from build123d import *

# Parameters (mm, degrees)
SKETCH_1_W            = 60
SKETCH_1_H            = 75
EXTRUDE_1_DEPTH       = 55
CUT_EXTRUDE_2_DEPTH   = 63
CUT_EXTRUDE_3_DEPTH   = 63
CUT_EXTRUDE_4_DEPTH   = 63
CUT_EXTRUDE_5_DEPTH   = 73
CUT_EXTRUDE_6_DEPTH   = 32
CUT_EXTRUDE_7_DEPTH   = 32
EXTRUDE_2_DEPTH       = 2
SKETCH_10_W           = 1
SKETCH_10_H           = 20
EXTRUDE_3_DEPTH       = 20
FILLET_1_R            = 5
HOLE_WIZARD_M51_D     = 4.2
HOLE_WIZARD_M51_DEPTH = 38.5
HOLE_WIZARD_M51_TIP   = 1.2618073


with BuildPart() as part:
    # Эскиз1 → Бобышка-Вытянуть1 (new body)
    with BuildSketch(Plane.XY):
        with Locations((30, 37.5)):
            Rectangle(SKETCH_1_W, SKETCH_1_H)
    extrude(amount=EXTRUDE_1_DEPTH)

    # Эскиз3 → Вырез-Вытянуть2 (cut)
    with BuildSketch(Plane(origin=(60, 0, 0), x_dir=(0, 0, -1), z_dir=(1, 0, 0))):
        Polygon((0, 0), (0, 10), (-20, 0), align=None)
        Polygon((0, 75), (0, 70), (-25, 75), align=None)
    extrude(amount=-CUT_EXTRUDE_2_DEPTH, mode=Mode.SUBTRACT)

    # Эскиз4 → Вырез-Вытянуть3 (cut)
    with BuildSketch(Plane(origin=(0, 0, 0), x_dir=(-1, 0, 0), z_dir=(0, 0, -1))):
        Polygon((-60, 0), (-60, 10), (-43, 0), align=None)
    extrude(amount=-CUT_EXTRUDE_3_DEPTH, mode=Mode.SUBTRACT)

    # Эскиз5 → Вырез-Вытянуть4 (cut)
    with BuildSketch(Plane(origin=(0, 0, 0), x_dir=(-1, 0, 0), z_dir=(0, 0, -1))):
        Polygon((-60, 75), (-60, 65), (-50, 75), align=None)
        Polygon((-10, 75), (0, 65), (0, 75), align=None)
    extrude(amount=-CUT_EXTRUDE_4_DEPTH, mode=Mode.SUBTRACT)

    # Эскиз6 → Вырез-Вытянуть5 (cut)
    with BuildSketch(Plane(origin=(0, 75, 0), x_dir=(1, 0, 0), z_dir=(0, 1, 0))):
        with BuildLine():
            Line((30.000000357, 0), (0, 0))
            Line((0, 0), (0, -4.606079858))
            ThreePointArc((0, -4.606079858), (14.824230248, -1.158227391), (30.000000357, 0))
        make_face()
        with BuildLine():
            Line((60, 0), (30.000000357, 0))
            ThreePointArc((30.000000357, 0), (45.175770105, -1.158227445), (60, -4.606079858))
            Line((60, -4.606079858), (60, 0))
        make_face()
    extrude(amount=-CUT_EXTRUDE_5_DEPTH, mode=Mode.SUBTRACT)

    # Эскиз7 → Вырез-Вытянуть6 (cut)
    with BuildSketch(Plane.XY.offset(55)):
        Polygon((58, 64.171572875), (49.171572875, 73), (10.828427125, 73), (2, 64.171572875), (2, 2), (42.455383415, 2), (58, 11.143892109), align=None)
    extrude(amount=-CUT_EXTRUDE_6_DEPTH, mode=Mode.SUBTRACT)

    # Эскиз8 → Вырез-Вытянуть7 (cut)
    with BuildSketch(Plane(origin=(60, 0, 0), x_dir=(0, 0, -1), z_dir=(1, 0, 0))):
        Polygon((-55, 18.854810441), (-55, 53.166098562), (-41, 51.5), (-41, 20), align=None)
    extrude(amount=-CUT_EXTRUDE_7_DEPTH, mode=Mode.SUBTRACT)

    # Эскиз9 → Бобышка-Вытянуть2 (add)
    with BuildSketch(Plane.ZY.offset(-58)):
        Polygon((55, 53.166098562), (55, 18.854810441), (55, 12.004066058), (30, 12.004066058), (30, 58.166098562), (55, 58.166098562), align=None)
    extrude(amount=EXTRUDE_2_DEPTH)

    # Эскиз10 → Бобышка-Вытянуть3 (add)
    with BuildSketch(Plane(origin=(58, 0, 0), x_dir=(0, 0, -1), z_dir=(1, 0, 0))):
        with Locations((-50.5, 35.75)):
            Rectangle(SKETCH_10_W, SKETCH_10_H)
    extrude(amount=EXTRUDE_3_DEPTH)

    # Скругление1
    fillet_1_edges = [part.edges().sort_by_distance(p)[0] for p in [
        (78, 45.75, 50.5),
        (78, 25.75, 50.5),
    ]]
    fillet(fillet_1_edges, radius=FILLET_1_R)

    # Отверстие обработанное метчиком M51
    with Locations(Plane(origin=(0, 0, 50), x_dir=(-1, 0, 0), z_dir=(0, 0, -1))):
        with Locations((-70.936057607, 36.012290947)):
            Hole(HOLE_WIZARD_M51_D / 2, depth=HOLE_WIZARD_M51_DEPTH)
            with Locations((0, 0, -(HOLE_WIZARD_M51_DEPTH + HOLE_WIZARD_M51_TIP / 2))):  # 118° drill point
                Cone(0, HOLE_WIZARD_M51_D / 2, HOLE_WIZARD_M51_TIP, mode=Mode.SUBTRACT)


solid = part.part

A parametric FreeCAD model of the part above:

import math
import FreeCAD as App
import Part
import Sketcher

V = App.Vector
Q = App.Units.Quantity


def edges_at(feature, points):
    """Names of the edges that pass closest to the given points."""
    edges = feature.Shape.Edges
    near = lambda p: min(range(len(edges)), key=lambda i: edges[i].distToShape(Part.Vertex(*p))[0])
    return sorted({f"Edge{near(p) + 1}" for p in points})

doc = App.newDocument("Part")
body = doc.addObject("PartDesign::Body", "Body")

# Sketch on XY plane
sketch1 = doc.addObject("Sketcher::SketchObject", "Sketch")
body.addObject(sketch1)
sketch1.AttachmentSupport = (doc.XY_Plane, [""])
sketch1.MapMode = "FlatFace"
sketch1.addGeometry(Part.LineSegment(V(0, 75, 0), V(0, 0, 0)), False)
sketch1.addGeometry(Part.LineSegment(V(0, 0, 0), V(60, 0, 0)), False)
sketch1.addGeometry(Part.LineSegment(V(60, 0, 0), V(60, 75, 0)), False)
sketch1.addGeometry(Part.LineSegment(V(60, 75, 0), V(0, 75, 0)), False)
sketch1.addConstraint(Sketcher.Constraint("Coincident", 0, 2, 1, 1))
sketch1.addConstraint(Sketcher.Constraint("Coincident", 1, 2, 2, 1))
sketch1.addConstraint(Sketcher.Constraint("Coincident", 2, 2, 3, 1))
sketch1.addConstraint(Sketcher.Constraint("Coincident", 3, 2, 0, 1))
sketch1.addConstraint(Sketcher.Constraint("Vertical", 0))
sketch1.addConstraint(Sketcher.Constraint("Horizontal", 1))
sketch1.addConstraint(Sketcher.Constraint("Vertical", 2))
sketch1.addConstraint(Sketcher.Constraint("Horizontal", 3))
sketch1.addConstraint(Sketcher.Constraint("Coincident", 0, 2, -1, 1))
sketch1.addConstraint(Sketcher.Constraint("DistanceX", 1, 1, 1, 2, Q("60 mm")))
sketch1.addConstraint(Sketcher.Constraint("DistanceY", 0, 2, 0, 1, Q("75 mm")))
pad1 = doc.addObject("PartDesign::Pad", "Pad")
body.addObject(pad1)
pad1.Profile = sketch1
pad1.Length = 55

# Sketch on YZ plane
sketch2 = doc.addObject("Sketcher::SketchObject", "Sketch001")
body.addObject(sketch2)
sketch2.AttachmentSupport = (doc.YZ_Plane, [""])
sketch2.MapMode = "FlatFace"
sketch2.AttachmentOffset = App.Placement(V(0, 0, 60), App.Rotation())
sketch2.addGeometry(Part.LineSegment(V(0, 0, 0), V(10, 0, 0)), False)
sketch2.addGeometry(Part.LineSegment(V(10, 0, 0), V(0, 20, 0)), False)
sketch2.addGeometry(Part.LineSegment(V(0, 20, 0), V(0, 0, 0)), False)
sketch2.addGeometry(Part.LineSegment(V(70, 0, 0), V(75, 0, 0)), False)
sketch2.addGeometry(Part.LineSegment(V(75, 0, 0), V(75, 25, 0)), False)
sketch2.addGeometry(Part.LineSegment(V(75, 25, 0), V(70, 0, 0)), False)
sketch2.addConstraint(Sketcher.Constraint("Coincident", 0, 2, 1, 1))
sketch2.addConstraint(Sketcher.Constraint("Coincident", 1, 2, 2, 1))
sketch2.addConstraint(Sketcher.Constraint("Coincident", 2, 2, 0, 1))
sketch2.addConstraint(Sketcher.Constraint("Coincident", 3, 2, 4, 1))
sketch2.addConstraint(Sketcher.Constraint("Coincident", 4, 2, 5, 1))
sketch2.addConstraint(Sketcher.Constraint("Coincident", 5, 2, 3, 1))
sketch2.addConstraint(Sketcher.Constraint("Horizontal", 0))
sketch2.addConstraint(Sketcher.Constraint("Vertical", 2))
sketch2.addConstraint(Sketcher.Constraint("Horizontal", 3))
sketch2.addConstraint(Sketcher.Constraint("Vertical", 4))
sketch2.addConstraint(Sketcher.Constraint("Coincident", 2, 2, -1, 1))
sketch2.addConstraint(Sketcher.Constraint("PointOnObject", 3, 2, -1))
sketch2.addConstraint(Sketcher.Constraint("DistanceX", 0, 1, 0, 2, Q("10 mm")))
sketch2.addConstraint(Sketcher.Constraint("DistanceX", 3, 1, 3, 2, Q("5 mm")))
sketch2.addConstraint(Sketcher.Constraint("DistanceY", 2, 2, 2, 1, Q("20 mm")))
sketch2.addConstraint(Sketcher.Constraint("DistanceY", 4, 1, 4, 2, Q("25 mm")))
sketch2.addConstraint(Sketcher.Constraint("DistanceX", -1, 1, 3, 2, Q("75 mm")))
pocket1 = doc.addObject("PartDesign::Pocket", "Pocket")
body.addObject(pocket1)
pocket1.Profile = sketch2
pocket1.Length = 63

# Sketch on XY plane
sketch3 = doc.addObject("Sketcher::SketchObject", "Sketch002")
body.addObject(sketch3)
sketch3.AttachmentSupport = (doc.XY_Plane, [""])
sketch3.MapMode = "FlatFace"
sketch3.addGeometry(Part.LineSegment(V(60, 10, 0), V(60, 0, 0)), False)
sketch3.addGeometry(Part.LineSegment(V(60, 0, 0), V(43, 0, 0)), False)
sketch3.addGeometry(Part.LineSegment(V(43, 0, 0), V(60, 10, 0)), False)
sketch3.addConstraint(Sketcher.Constraint("Coincident", 0, 2, 1, 1))
sketch3.addConstraint(Sketcher.Constraint("Coincident", 1, 2, 2, 1))
sketch3.addConstraint(Sketcher.Constraint("Coincident", 2, 2, 0, 1))
sketch3.addConstraint(Sketcher.Constraint("Vertical", 0))
sketch3.addConstraint(Sketcher.Constraint("Horizontal", 1))
sketch3.addConstraint(Sketcher.Constraint("PointOnObject", 0, 2, -1))
sketch3.addConstraint(Sketcher.Constraint("DistanceX", 1, 2, 1, 1, Q("17 mm")))
sketch3.addConstraint(Sketcher.Constraint("DistanceY", 0, 2, 0, 1, Q("10 mm")))
sketch3.addConstraint(Sketcher.Constraint("DistanceX", -1, 1, 0, 2, Q("60 mm")))
pocket2 = doc.addObject("PartDesign::Pocket", "Pocket001")
body.addObject(pocket2)
pocket2.Profile = sketch3
pocket2.Length = 63
pocket2.Reversed = True

# Sketch on XY plane
sketch4 = doc.addObject("Sketcher::SketchObject", "Sketch003")
body.addObject(sketch4)
sketch4.AttachmentSupport = (doc.XY_Plane, [""])
sketch4.MapMode = "FlatFace"
sketch4.addGeometry(Part.LineSegment(V(60, 75, 0), V(60, 65, 0)), False)
sketch4.addGeometry(Part.LineSegment(V(60, 65, 0), V(50, 75, 0)), False)
sketch4.addGeometry(Part.LineSegment(V(50, 75, 0), V(60, 75, 0)), False)
sketch4.addGeometry(Part.LineSegment(V(10, 75, 0), V(0, 65, 0)), False)
sketch4.addGeometry(Part.LineSegment(V(0, 65, 0), V(0, 75, 0)), False)
sketch4.addGeometry(Part.LineSegment(V(0, 75, 0), V(10, 75, 0)), False)
sketch4.addConstraint(Sketcher.Constraint("Coincident", 0, 2, 1, 1))
sketch4.addConstraint(Sketcher.Constraint("Coincident", 1, 2, 2, 1))
sketch4.addConstraint(Sketcher.Constraint("Coincident", 2, 2, 0, 1))
sketch4.addConstraint(Sketcher.Constraint("Coincident", 3, 2, 4, 1))
sketch4.addConstraint(Sketcher.Constraint("Coincident", 4, 2, 5, 1))
sketch4.addConstraint(Sketcher.Constraint("Coincident", 5, 2, 3, 1))
sketch4.addConstraint(Sketcher.Constraint("Vertical", 0))
sketch4.addConstraint(Sketcher.Constraint("Horizontal", 2))
sketch4.addConstraint(Sketcher.Constraint("Vertical", 4))
sketch4.addConstraint(Sketcher.Constraint("Horizontal", 5))
sketch4.addConstraint(Sketcher.Constraint("PointOnObject", 3, 2, -2))
sketch4.addConstraint(Sketcher.Constraint("Perpendicular", 1, 3))
sketch4.addConstraint(Sketcher.Constraint("Horizontal", 0, 2, 3, 2))
sketch4.addConstraint(Sketcher.Constraint("Horizontal", 2, 2, 4, 2))
sketch4.addConstraint(Sketcher.Constraint("Equal", 2, 5))
sketch4.addConstraint(Sketcher.Constraint("DistanceX", 2, 1, 2, 2, Q("10 mm")))
sketch4.addConstraint(Sketcher.Constraint("DistanceX", -1, 1, 0, 2, Q("60 mm")))
sketch4.addConstraint(Sketcher.Constraint("DistanceY", -1, 1, 0, 2, Q("65 mm")))
pocket3 = doc.addObject("PartDesign::Pocket", "Pocket002")
body.addObject(pocket3)
pocket3.Profile = sketch4
pocket3.Length = 63
pocket3.Reversed = True

# Sketch on XZ plane
sketch5 = doc.addObject("Sketcher::SketchObject", "Sketch004")
body.addObject(sketch5)
sketch5.AttachmentSupport = (doc.XZ_Plane, [""])
sketch5.MapMode = "FlatFace"
sketch5.AttachmentOffset = App.Placement(V(0, 0, -75), App.Rotation())
sketch5.addGeometry(Part.LineSegment(V(30, 0, 0), V(0, 0, 0)), False)
sketch5.addGeometry(Part.LineSegment(V(0, 0, 0), V(0, 4.6, 0)), False)
sketch5.addGeometry(Part.ArcOfCircle(Part.Circle(V(30, 100, 0), V(0, 0, 1), 100), math.radians(-107.46), math.radians(-90)), False)
sketch5.addGeometry(Part.LineSegment(V(60, 0, 0), V(30, 0, 0)), False)
sketch5.addGeometry(Part.ArcOfCircle(Part.Circle(V(30, 100, 0), V(0, 0, 1), 100), math.radians(-90), math.radians(-72.54)), False)
sketch5.addGeometry(Part.LineSegment(V(60, 4.6, 0), V(60, 0, 0)), False)
sketch5.addConstraint(Sketcher.Constraint("Coincident", 0, 2, 1, 1))
sketch5.addConstraint(Sketcher.Constraint("Coincident", 1, 2, 2, 1))
sketch5.addConstraint(Sketcher.Constraint("Tangent", 2, 2, 0, 1))
sketch5.addConstraint(Sketcher.Constraint("Tangent", 3, 2, 4, 1))
sketch5.addConstraint(Sketcher.Constraint("Coincident", 4, 2, 5, 1))
sketch5.addConstraint(Sketcher.Constraint("Coincident", 5, 2, 3, 1))
sketch5.addConstraint(Sketcher.Constraint("Horizontal", 0))
sketch5.addConstraint(Sketcher.Constraint("Vertical", 1))
sketch5.addConstraint(Sketcher.Constraint("Horizontal", 3))
sketch5.addConstraint(Sketcher.Constraint("Vertical", 5))
sketch5.addConstraint(Sketcher.Constraint("Coincident", 0, 2, -1, 1))
sketch5.addConstraint(Sketcher.Constraint("Coincident", 4, 3, 2, 3))
sketch5.addConstraint(Sketcher.Constraint("Equal", 2, 4))
sketch5.addConstraint(Sketcher.Constraint("Horizontal", 1, 2, 4, 2))
sketch5.addConstraint(Sketcher.Constraint("Radius", 2, Q("100 mm")))
sketch5.addConstraint(Sketcher.Constraint("DistanceX", 0, 2, 0, 1, Q("30 mm")))
pocket4 = doc.addObject("PartDesign::Pocket", "Pocket003")
body.addObject(pocket4)
pocket4.Profile = sketch5
pocket4.Length = 73
pocket4.Reversed = True

# Sketch on XY plane
sketch6 = doc.addObject("Sketcher::SketchObject", "Sketch005")
body.addObject(sketch6)
sketch6.AttachmentSupport = (doc.XY_Plane, [""])
sketch6.MapMode = "FlatFace"
sketch6.AttachmentOffset = App.Placement(V(0, 0, 55), App.Rotation())
sketch6.addGeometry(Part.LineSegment(V(58, 64, 0), V(49, 73, 0)), False)
sketch6.addGeometry(Part.LineSegment(V(49, 73, 0), V(11, 73, 0)), False)
sketch6.addGeometry(Part.LineSegment(V(11, 73, 0), V(2, 64, 0)), False)
sketch6.addGeometry(Part.LineSegment(V(2, 64, 0), V(2, 2, 0)), False)
sketch6.addGeometry(Part.LineSegment(V(2, 2, 0), V(42, 2, 0)), False)
sketch6.addGeometry(Part.LineSegment(V(42, 2, 0), V(58, 11, 0)), False)
sketch6.addGeometry(Part.LineSegment(V(58, 11, 0), V(58, 64, 0)), False)
sketch6.addConstraint(Sketcher.Constraint("Coincident", 0, 2, 1, 1))
sketch6.addConstraint(Sketcher.Constraint("Coincident", 1, 2, 2, 1))
sketch6.addConstraint(Sketcher.Constraint("Coincident", 2, 2, 3, 1))
sketch6.addConstraint(Sketcher.Constraint("Coincident", 3, 2, 4, 1))
sketch6.addConstraint(Sketcher.Constraint("Coincident", 4, 2, 5, 1))
sketch6.addConstraint(Sketcher.Constraint("Coincident", 5, 2, 6, 1))
sketch6.addConstraint(Sketcher.Constraint("Coincident", 6, 2, 0, 1))
sketch6.addConstraint(Sketcher.Constraint("Horizontal", 1))
sketch6.addConstraint(Sketcher.Constraint("Vertical", 3))
sketch6.addConstraint(Sketcher.Constraint("Horizontal", 4))
sketch6.addConstraint(Sketcher.Constraint("Vertical", 6))
sketch6.addConstraint(Sketcher.Constraint("Perpendicular", 0, 2))
sketch6.addConstraint(Sketcher.Constraint("Horizontal", 2, 2, 6, 2))
sketch6.addConstraint(Sketcher.Constraint("Equal", 0, 2))
sketch6.addConstraint(Sketcher.Constraint("DistanceY", -1, 1, 0, 2, Q("73 mm")))
sketch6.addConstraint(Sketcher.Constraint("DistanceX", -1, 1, 2, 2, Q("2 mm")))
sketch6.addConstraint(Sketcher.Constraint("DistanceY", -1, 1, 3, 2, Q("2 mm")))
sketch6.addConstraint(Sketcher.Constraint("DistanceX", -1, 1, 5, 2, Q("58 mm")))
sketch6.addConstraint(Sketcher.Constraint("DistanceY", 6, 1, 6, 2, Q("53.027681 mm")))
sketch6.addConstraint(Sketcher.Constraint("Distance", 0, Q("12.485281 mm")))
sketch6.addConstraint(Sketcher.Constraint("DistanceX", 4, 1, 4, 2, Q("40.455383 mm")))
pocket5 = doc.addObject("PartDesign::Pocket", "Pocket004")
body.addObject(pocket5)
pocket5.Profile = sketch6
pocket5.Length = 32

# Sketch on YZ plane
sketch7 = doc.addObject("Sketcher::SketchObject", "Sketch006")
body.addObject(sketch7)
sketch7.AttachmentSupport = (doc.YZ_Plane, [""])
sketch7.MapMode = "FlatFace"
sketch7.AttachmentOffset = App.Placement(V(0, 0, 60), App.Rotation())
sketch7.addGeometry(Part.LineSegment(V(53, 55, 0), V(19, 55, 0)), False)
sketch7.addGeometry(Part.LineSegment(V(19, 55, 0), V(20, 41, 0)), False)
sketch7.addGeometry(Part.LineSegment(V(20, 41, 0), V(52, 41, 0)), False)
sketch7.addGeometry(Part.LineSegment(V(52, 41, 0), V(53, 55, 0)), False)
sketch7.addConstraint(Sketcher.Constraint("Coincident", 0, 2, 1, 1))
sketch7.addConstraint(Sketcher.Constraint("Coincident", 1, 2, 2, 1))
sketch7.addConstraint(Sketcher.Constraint("Coincident", 2, 2, 3, 1))
sketch7.addConstraint(Sketcher.Constraint("Coincident", 3, 2, 0, 1))
sketch7.addConstraint(Sketcher.Constraint("Horizontal", 0))
sketch7.addConstraint(Sketcher.Constraint("Horizontal", 2))
sketch7.addConstraint(Sketcher.Constraint("DistanceX", 2, 1, 2, 2, Q("31.5 mm")))
sketch7.addConstraint(Sketcher.Constraint("DistanceY", -1, 1, 0, 2, Q("55 mm")))
sketch7.addConstraint(Sketcher.Constraint("DistanceX", -1, 1, 1, 2, Q("20 mm")))
sketch7.addConstraint(Sketcher.Constraint("DistanceY", -1, 1, 1, 2, Q("41 mm")))
sketch7.addConstraint(Sketcher.Constraint("DistanceX", 0, 2, 0, 1, Q("34.311288 mm")))
sketch7.addConstraint(Sketcher.Constraint("DistanceX", -1, 1, 3, 2, Q("53.166099 mm")))
pocket6 = doc.addObject("PartDesign::Pocket", "Pocket005")
body.addObject(pocket6)
pocket6.Profile = sketch7
pocket6.Length = 32

# Sketch on YZ plane
sketch8 = doc.addObject("Sketcher::SketchObject", "Sketch007")
body.addObject(sketch8)
sketch8.AttachmentSupport = (doc.YZ_Plane, [""])
sketch8.MapMode = "FlatFace"
sketch8.AttachmentOffset = App.Placement(V(0, 0, 58), App.Rotation())
sketch8.addGeometry(Part.LineSegment(V(12, 55, 0), V(58, 55, 0)), False)
sketch8.addGeometry(Part.LineSegment(V(58, 55, 0), V(58, 30, 0)), False)
sketch8.addGeometry(Part.LineSegment(V(58, 30, 0), V(12, 30, 0)), False)
sketch8.addGeometry(Part.LineSegment(V(12, 30, 0), V(12, 55, 0)), False)
sketch8.addConstraint(Sketcher.Constraint("Coincident", 0, 2, 1, 1))
sketch8.addConstraint(Sketcher.Constraint("Coincident", 1, 2, 2, 1))
sketch8.addConstraint(Sketcher.Constraint("Coincident", 2, 2, 3, 1))
sketch8.addConstraint(Sketcher.Constraint("Coincident", 3, 2, 0, 1))
sketch8.addConstraint(Sketcher.Constraint("Horizontal", 0))
sketch8.addConstraint(Sketcher.Constraint("Vertical", 1))
sketch8.addConstraint(Sketcher.Constraint("Horizontal", 2))
sketch8.addConstraint(Sketcher.Constraint("Vertical", 3))
sketch8.addConstraint(Sketcher.Constraint("DistanceY", 1, 2, 1, 1, Q("25 mm")))
sketch8.addConstraint(Sketcher.Constraint("DistanceY", -1, 1, 0, 2, Q("55 mm")))
sketch8.addConstraint(Sketcher.Constraint("DistanceX", -1, 1, 0, 2, Q("58.166099 mm")))
sketch8.addConstraint(Sketcher.Constraint("DistanceX", 0, 1, 0, 2, Q("46.162033 mm")))
pad2 = doc.addObject("PartDesign::Pad", "Pad001")
body.addObject(pad2)
pad2.Profile = sketch8
pad2.Length = 2
pad2.Reversed = True

# Sketch on YZ plane
sketch9 = doc.addObject("Sketcher::SketchObject", "Sketch008")
body.addObject(sketch9)
sketch9.AttachmentSupport = (doc.YZ_Plane, [""])
sketch9.MapMode = "FlatFace"
sketch9.AttachmentOffset = App.Placement(V(0, 0, 58), App.Rotation())
sketch9.addGeometry(Part.LineSegment(V(45.8, 51, 0), V(25.8, 51, 0)), False)
sketch9.addGeometry(Part.LineSegment(V(25.8, 51, 0), V(25.8, 50, 0)), False)
sketch9.addGeometry(Part.LineSegment(V(25.8, 50, 0), V(45.8, 50, 0)), False)
sketch9.addGeometry(Part.LineSegment(V(45.8, 50, 0), V(45.8, 51, 0)), False)
sketch9.addConstraint(Sketcher.Constraint("Coincident", 0, 2, 1, 1))
sketch9.addConstraint(Sketcher.Constraint("Coincident", 1, 2, 2, 1))
sketch9.addConstraint(Sketcher.Constraint("Coincident", 2, 2, 3, 1))
sketch9.addConstraint(Sketcher.Constraint("Coincident", 3, 2, 0, 1))
sketch9.addConstraint(Sketcher.Constraint("Horizontal", 0))
sketch9.addConstraint(Sketcher.Constraint("Vertical", 1))
sketch9.addConstraint(Sketcher.Constraint("Horizontal", 2))
sketch9.addConstraint(Sketcher.Constraint("Vertical", 3))
sketch9.addConstraint(Sketcher.Constraint("DistanceX", 0, 2, 0, 1, Q("20 mm")))
sketch9.addConstraint(Sketcher.Constraint("DistanceY", 1, 2, 1, 1, Q("1 mm")))
sketch9.addConstraint(Sketcher.Constraint("DistanceY", -1, 1, 0, 2, Q("51 mm")))
sketch9.addConstraint(Sketcher.Constraint("DistanceX", -1, 1, 0, 2, Q("25.75 mm")))
pad3 = doc.addObject("PartDesign::Pad", "Pad002")
body.addObject(pad3)
pad3.Profile = sketch9
pad3.Length = 20
doc.recompute()

fillet = doc.addObject("PartDesign::Fillet", "Fillet")
body.addObject(fillet)
fillet.Base = (pad3, edges_at(pad3, [(78, 45.75, 50.5), (78, 25.75, 50.5)]))
fillet.Radius = 5

# Sketch on XY plane
sketch10 = doc.addObject("Sketcher::SketchObject", "Sketch009")
body.addObject(sketch10)
sketch10.AttachmentSupport = (doc.XY_Plane, [""])
sketch10.MapMode = "FlatFace"
sketch10.AttachmentOffset = App.Placement(V(0, 0, 50), App.Rotation())
sketch10.addGeometry(Part.Circle(V(70.9, 36, 0), V(0, 0, 1), 2.1), False)
sketch10.addConstraint(Sketcher.Constraint("Diameter", 0, Q("4.2 mm")))
sketch10.addConstraint(Sketcher.Constraint("DistanceY", -1, 1, 0, 3, Q("36.012291 mm")))
sketch10.addConstraint(Sketcher.Constraint("DistanceX", -1, 1, 0, 3, Q("70.936058 mm")))
doc.recompute()
hole = doc.addObject("PartDesign::Hole", "Hole")
body.addObject(hole)
hole.Profile = sketch10
hole.ThreadType = "None"
hole.Diameter = 4.2
hole.DepthType = "Dimension"
hole.Depth = 38.5
hole.DrillPoint = "Angled"
hole.DrillPointAngle = 118
hole.Reversed = True

doc.recompute()
